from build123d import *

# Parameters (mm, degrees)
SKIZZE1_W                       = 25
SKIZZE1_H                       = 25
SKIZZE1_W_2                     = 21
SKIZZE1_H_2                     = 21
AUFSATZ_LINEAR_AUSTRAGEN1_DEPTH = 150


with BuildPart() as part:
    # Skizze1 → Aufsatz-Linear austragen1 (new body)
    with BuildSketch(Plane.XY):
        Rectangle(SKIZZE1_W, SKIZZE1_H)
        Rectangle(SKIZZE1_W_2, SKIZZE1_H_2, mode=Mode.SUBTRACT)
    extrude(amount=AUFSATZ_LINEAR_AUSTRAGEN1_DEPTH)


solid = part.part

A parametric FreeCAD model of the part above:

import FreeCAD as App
import Part
import Sketcher
from FreeCAD import Vector
Q = App.Units.Quantity


def add_polygon(sketch, points):
    """Adds a closed chain of lines whose ends are joined by coincident constraints."""
    first, n = sketch.GeometryCount, len(points)
    for a, b in zip(points, points[1:] + points[:1]):
        sketch.addGeometry(Part.LineSegment(App.Vector(*a, 0), App.Vector(*b, 0)), False)
    for i in range(n):
        sketch.addConstraint(Sketcher.Constraint("Coincident", first + i, 2, first + (i + 1) % n, 1))

doc = App.newDocument("Part")
body = doc.addObject("PartDesign::Body", "Body")

# Sketch on XY plane
sketch1 = body.newObject("Sketcher::SketchObject", "Sketch")
sketch1.AttachmentSupport = (doc.getObject("XY_Plane"), [""])
sketch1.MapMode = "FlatFace"
add_polygon(sketch1, [(-12.5, 12.5), (-12.5, -12.5), (12.5, -12.5), (12.5, 12.5)])  # lines 0-3
add_polygon(sketch1, [(10.5, -10.5), (-10.5, -10.5), (-10.5, 10.5), (10.5, 10.5)])  # lines 4-7
sketch1.addConstraint([
    Sketcher.Constraint("Vertical", 0),
    Sketcher.Constraint("Horizontal", 1),
    Sketcher.Constraint("Vertical", 2),
    Sketcher.Constraint("Horizontal", 3),
    Sketcher.Constraint("Horizontal", 4),
    Sketcher.Constraint("Vertical", 5),
    Sketcher.Constraint("Horizontal", 6),
    Sketcher.Constraint("Vertical", 7),
    Sketcher.Constraint("Symmetric", 0, 2, 2, 2, -1, 1),
    Sketcher.Constraint("Symmetric", 4, 2, 6, 2, -1, 1),
    Sketcher.Constraint("Equal", 3, 0),
    Sketcher.Constraint("Equal", 6, 5),
    Sketcher.Constraint("DistanceX", 1, 1, 1, 2, Q("25 mm")),
    Sketcher.Constraint("DistanceX", 4, 2, 4, 1, Q("21 mm")),
])
pad1 = body.newObject("PartDesign::Pad", "Pad")
pad1.Profile = sketch1
pad1.Length = 150

doc.recompute()
